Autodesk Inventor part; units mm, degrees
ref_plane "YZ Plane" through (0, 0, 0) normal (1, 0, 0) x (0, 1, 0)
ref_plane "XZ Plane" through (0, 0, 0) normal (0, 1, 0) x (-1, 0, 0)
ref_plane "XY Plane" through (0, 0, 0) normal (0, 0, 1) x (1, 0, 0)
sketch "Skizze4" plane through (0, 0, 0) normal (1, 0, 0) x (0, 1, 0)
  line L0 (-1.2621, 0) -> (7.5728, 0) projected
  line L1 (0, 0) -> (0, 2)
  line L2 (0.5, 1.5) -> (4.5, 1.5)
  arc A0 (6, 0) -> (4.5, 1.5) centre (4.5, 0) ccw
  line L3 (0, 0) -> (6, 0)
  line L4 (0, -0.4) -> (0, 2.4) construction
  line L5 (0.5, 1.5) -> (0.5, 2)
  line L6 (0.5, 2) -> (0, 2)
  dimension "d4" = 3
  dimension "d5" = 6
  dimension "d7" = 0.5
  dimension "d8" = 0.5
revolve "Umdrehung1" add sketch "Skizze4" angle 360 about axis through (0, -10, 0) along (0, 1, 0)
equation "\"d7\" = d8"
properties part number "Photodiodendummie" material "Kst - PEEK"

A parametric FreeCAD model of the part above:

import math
import FreeCAD as App
import Part
import Sketcher
Q = App.Units.Quantity

doc = App.newDocument("Part")
body = doc.addObject("PartDesign::Body", "Body")

# Sketch on YZ plane
sketch1 = body.newObject("Sketcher::SketchObject", "Sketch")
sketch1.AttachmentSupport = (doc.getObject("YZ_Plane"), [""])
sketch1.MapMode = "FlatFace"
sketch1.addGeometry(Part.LineSegment(App.Vector(0, 2, 0), App.Vector(0, 0, 0)), False)
sketch1.addGeometry(Part.LineSegment(App.Vector(0, 0, 0), App.Vector(6, 0, 0)), False)
sketch1.addGeometry(Part.ArcOfCircle(Part.Circle(App.Vector(4.5, 0, 0), App.Vector(0, 0, 1), 1.5), math.radians(0), math.radians(90)), False)
sketch1.addGeometry(Part.LineSegment(App.Vector(4.5, 1.5, 0), App.Vector(0.5, 1.5, 0)), False)
sketch1.addGeometry(Part.LineSegment(App.Vector(0.5, 1.5, 0), App.Vector(0.5, 2, 0)), False)
sketch1.addGeometry(Part.LineSegment(App.Vector(0.5, 2, 0), App.Vector(0, 2, 0)), False)
sketch1.addConstraint(Sketcher.Constraint("Coincident", 0, 2, 1, 1))
sketch1.addConstraint(Sketcher.Constraint("Coincident", 1, 2, 2, 1))
sketch1.addConstraint(Sketcher.Constraint("Tangent", 2, 2, 3, 1))
sketch1.addConstraint(Sketcher.Constraint("Coincident", 3, 2, 4, 1))
sketch1.addConstraint(Sketcher.Constraint("Coincident", 4, 2, 5, 1))
sketch1.addConstraint(Sketcher.Constraint("Coincident", 5, 2, 0, 1))
sketch1.addConstraint(Sketcher.Constraint("Vertical", 0))
sketch1.addConstraint(Sketcher.Constraint("Horizontal", 1))
sketch1.addConstraint(Sketcher.Constraint("Horizontal", 3))
sketch1.addConstraint(Sketcher.Constraint("Vertical", 4))
sketch1.addConstraint(Sketcher.Constraint("Horizontal", 5))
sketch1.addConstraint(Sketcher.Constraint("Coincident", 0, 2, -1, 1))
sketch1.addConstraint(Sketcher.Constraint("PointOnObject", 2, 3, -1))
sketch1.addConstraint(Sketcher.Constraint("Equal", 5, 4))
sketch1.addConstraint(Sketcher.Constraint("Radius", 2, Q("1.5 mm")))
sketch1.addConstraint(Sketcher.Constraint("DistanceX", 1, 1, 1, 2, Q("6 mm")))
sketch1.addConstraint(Sketcher.Constraint("DistanceX", 5, 2, 5, 1, Q("0.5 mm")))
revolution = body.newObject("PartDesign::Revolution", "Revolution")
revolution.Profile = sketch1
revolution.ReferenceAxis = (sketch1, ["H_Axis"])
revolution.Angle = 360

doc.recompute()
